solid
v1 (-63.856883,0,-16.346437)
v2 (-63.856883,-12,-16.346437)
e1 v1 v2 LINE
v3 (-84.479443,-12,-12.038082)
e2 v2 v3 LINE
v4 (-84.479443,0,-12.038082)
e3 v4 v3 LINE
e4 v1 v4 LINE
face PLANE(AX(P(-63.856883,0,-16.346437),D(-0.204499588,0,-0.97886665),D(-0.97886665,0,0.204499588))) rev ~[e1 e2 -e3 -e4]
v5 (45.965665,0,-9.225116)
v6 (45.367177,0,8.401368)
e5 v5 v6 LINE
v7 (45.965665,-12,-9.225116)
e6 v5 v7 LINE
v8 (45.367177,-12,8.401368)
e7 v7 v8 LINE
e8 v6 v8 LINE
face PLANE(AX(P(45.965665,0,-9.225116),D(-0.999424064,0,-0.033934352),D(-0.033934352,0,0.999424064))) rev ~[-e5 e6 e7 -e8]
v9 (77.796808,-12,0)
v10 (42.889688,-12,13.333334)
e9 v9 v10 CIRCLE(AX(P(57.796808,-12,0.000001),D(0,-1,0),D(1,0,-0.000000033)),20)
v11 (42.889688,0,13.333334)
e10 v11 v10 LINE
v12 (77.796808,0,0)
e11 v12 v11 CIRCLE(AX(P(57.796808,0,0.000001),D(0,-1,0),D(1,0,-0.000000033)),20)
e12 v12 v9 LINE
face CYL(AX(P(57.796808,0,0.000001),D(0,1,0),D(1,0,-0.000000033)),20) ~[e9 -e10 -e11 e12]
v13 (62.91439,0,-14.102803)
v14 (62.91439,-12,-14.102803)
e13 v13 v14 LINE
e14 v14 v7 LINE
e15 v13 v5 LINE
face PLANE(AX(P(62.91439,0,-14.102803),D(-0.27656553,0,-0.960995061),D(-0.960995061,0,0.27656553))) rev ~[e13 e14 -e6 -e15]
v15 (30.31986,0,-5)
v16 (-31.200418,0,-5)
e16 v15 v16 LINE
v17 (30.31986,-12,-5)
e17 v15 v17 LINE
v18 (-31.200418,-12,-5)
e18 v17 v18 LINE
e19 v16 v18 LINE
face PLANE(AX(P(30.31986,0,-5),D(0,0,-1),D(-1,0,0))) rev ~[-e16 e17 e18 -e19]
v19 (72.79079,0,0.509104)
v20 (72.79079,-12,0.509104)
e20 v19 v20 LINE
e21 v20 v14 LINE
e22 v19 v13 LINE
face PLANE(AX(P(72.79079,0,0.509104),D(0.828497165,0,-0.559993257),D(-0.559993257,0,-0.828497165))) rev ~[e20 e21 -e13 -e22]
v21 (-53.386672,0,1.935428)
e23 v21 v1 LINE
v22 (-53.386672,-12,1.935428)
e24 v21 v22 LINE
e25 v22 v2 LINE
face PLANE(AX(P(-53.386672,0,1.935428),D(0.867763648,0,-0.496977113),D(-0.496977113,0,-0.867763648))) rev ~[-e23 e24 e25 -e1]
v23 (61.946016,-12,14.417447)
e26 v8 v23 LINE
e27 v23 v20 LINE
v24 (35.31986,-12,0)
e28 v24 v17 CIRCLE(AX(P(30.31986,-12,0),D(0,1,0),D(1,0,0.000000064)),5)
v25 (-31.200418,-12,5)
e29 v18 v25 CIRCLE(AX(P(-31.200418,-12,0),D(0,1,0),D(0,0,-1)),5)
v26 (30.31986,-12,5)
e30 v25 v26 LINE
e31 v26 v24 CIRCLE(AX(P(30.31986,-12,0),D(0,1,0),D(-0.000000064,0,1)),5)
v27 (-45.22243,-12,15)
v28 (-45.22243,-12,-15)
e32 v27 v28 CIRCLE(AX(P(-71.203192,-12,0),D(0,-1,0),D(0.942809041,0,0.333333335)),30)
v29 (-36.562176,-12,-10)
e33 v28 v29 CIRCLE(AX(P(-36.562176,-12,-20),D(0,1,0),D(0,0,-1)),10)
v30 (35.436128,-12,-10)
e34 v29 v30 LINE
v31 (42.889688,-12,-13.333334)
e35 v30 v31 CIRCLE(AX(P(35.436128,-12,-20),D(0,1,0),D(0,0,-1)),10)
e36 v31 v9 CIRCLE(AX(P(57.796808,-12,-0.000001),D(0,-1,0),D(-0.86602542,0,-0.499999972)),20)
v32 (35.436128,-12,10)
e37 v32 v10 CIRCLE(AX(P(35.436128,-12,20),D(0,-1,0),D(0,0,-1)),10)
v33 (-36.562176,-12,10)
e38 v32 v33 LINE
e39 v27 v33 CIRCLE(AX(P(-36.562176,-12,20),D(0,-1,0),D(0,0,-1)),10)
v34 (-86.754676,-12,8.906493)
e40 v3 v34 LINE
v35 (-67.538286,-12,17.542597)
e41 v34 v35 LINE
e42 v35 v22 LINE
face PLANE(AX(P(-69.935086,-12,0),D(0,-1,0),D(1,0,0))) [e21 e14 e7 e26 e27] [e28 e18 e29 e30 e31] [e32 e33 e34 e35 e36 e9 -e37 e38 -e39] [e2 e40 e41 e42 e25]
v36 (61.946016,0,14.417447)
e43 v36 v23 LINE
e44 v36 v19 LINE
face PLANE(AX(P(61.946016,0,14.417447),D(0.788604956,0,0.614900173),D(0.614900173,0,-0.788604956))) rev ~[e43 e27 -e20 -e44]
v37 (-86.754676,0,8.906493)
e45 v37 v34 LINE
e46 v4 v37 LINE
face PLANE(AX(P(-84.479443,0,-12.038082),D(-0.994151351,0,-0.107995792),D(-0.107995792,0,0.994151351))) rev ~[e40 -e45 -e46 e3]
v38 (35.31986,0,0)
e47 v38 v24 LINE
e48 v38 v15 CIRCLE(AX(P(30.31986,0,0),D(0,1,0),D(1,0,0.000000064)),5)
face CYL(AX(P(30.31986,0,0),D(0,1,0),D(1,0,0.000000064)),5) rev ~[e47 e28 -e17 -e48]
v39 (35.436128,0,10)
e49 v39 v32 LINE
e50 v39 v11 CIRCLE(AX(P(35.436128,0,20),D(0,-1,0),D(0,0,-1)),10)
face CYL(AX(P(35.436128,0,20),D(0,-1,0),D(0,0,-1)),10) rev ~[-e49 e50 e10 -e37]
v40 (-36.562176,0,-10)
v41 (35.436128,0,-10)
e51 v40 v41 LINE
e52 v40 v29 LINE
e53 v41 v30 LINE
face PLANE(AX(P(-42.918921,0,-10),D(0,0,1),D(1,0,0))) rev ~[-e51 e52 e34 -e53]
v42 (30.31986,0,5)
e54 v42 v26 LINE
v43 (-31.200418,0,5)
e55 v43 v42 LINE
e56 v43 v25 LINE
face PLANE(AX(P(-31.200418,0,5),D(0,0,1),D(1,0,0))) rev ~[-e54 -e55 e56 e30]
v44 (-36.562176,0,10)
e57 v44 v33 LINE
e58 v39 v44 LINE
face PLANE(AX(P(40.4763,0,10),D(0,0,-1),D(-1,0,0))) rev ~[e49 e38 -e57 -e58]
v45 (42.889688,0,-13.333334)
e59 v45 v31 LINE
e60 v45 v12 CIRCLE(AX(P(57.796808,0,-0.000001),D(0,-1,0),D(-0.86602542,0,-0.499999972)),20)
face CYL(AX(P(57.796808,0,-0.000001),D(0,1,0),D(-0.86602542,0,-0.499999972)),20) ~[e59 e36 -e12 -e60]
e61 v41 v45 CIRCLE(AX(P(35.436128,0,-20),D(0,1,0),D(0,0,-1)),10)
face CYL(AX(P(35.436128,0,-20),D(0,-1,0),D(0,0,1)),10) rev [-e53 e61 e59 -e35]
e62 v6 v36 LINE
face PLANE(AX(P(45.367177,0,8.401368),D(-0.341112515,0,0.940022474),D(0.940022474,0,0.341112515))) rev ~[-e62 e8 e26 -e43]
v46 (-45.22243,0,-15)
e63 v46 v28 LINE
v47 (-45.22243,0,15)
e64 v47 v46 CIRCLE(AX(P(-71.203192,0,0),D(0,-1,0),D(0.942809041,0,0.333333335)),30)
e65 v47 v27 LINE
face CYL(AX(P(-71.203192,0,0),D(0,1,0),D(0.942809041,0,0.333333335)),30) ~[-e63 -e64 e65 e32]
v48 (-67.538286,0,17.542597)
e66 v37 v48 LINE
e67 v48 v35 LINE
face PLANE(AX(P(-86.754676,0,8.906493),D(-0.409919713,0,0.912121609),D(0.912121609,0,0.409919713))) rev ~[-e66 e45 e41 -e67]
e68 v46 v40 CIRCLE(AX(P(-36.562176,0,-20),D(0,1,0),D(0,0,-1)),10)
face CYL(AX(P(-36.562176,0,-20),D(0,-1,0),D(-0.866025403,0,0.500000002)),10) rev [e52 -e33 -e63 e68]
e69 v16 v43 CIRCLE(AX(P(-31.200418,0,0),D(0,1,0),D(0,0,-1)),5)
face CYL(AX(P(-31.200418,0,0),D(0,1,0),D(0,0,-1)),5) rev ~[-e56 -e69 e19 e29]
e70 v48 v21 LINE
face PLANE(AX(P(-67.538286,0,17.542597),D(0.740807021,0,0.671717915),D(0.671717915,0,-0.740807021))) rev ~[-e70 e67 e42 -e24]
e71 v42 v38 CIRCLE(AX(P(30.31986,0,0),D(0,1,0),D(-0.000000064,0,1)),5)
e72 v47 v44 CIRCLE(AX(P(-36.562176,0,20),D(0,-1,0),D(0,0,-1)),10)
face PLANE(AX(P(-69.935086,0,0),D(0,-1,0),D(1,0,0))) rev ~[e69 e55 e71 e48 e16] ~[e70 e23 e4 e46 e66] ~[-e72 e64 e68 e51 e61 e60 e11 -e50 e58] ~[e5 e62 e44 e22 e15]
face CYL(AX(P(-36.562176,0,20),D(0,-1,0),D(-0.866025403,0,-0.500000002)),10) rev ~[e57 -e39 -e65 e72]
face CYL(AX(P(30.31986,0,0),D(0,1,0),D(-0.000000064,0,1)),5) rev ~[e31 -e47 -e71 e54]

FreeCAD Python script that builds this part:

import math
import FreeCAD as App
import Part
import Sketcher

V = App.Vector


def edges_at(feature, points):
    """Names of the edges that pass closest to the given points."""
    edges = feature.Shape.Edges
    near = lambda p: min(range(len(edges)), key=lambda i: edges[i].distToShape(Part.Vertex(*p))[0])
    return sorted({f"Edge{near(p) + 1}" for p in points})

doc = App.newDocument("Part")
body = doc.addObject("PartDesign::Body", "Body")

sketch1 = doc.addObject("Sketcher::SketchObject", "Sketch")
body.addObject(sketch1)
sketch1.AttachmentSupport = (doc.XZ_Plane, [""])
sketch1.MapMode = "FlatFace"
sketch1.addGeometry([
    Part.ArcOfCircle(Part.Circle(V(-71.203192, 0, 0), V(0, 0, 1), 30), math.radians(19.471221), math.radians(340.528779)),
    Part.LineSegment(V(-42.918921, -10, 0), V(40.4763, -10, 0)),
    Part.ArcOfCircle(Part.Circle(V(57.796808, -0.000001, 0), V(0, 0, 1), 20), math.radians(-150.000002), math.radians(0.000002)),
    Part.ArcOfCircle(Part.Circle(V(57.796808, 0.000001, 0), V(0, 0, 1), 20), math.radians(-0.000002), math.radians(150.000002)),
    Part.LineSegment(V(40.4763, 10, 0), V(-42.918921, 10, 0)),
    Part.ArcOfCircle(Part.Circle(V(-31.200418, 0, 0), V(0, 0, 1), 5), math.radians(90), math.radians(270)),
    Part.LineSegment(V(-31.200418, 5, 0), V(30.31986, 5, 0)),
    Part.ArcOfCircle(Part.Circle(V(30.31986, 0, 0), V(0, 0, 1), 5), math.radians(-0.000004), math.radians(90.000004)),
    Part.ArcOfCircle(Part.Circle(V(30.31986, 0, 0), V(0, 0, 1), 5), math.radians(-90.000004), math.radians(0.000004)),
    Part.LineSegment(V(30.31986, -5, 0), V(-31.200418, -5, 0)),
    Part.LineSegment(V(45.965665, -9.225116, 0), V(45.367177, 8.401368, 0)),
    Part.LineSegment(V(45.367177, 8.401368, 0), V(61.946016, 14.417447, 0)),
    Part.LineSegment(V(61.946016, 14.417447, 0), V(72.79079, 0.509104, 0)),
    Part.LineSegment(V(72.79079, 0.509104, 0), V(62.91439, -14.102803, 0)),
    Part.LineSegment(V(62.91439, -14.102803, 0), V(45.965665, -9.225116, 0)),
    Part.LineSegment(V(-84.479443, -12.038082, 0), V(-86.754676, 8.906493, 0)),
    Part.LineSegment(V(-86.754676, 8.906493, 0), V(-67.538286, 17.542597, 0)),
    Part.LineSegment(V(-67.538286, 17.542597, 0), V(-53.386672, 1.935428, 0)),
    Part.LineSegment(V(-53.386672, 1.935428, 0), V(-63.856883, -16.346437, 0)),
    Part.LineSegment(V(-63.856883, -16.346437, 0), V(-84.479443, -12.038082, 0)),
], False)
sketch1.addConstraint([
    Sketcher.Constraint("Coincident", 0, 2, 1, 1),
    Sketcher.Constraint("Coincident", 1, 2, 2, 1),
    Sketcher.Constraint("Tangent", 2, 2, 3, 1),
    Sketcher.Constraint("Coincident", 3, 2, 4, 1),
    Sketcher.Constraint("Coincident", 4, 2, 0, 1),
    Sketcher.Constraint("Tangent", 5, 1, 6, 1),
    Sketcher.Constraint("Tangent", 6, 2, 7, 2),
    Sketcher.Constraint("Tangent", 7, 1, 8, 2),
    Sketcher.Constraint("Tangent", 8, 1, 9, 1),
    Sketcher.Constraint("Tangent", 9, 2, 5, 2),
    Sketcher.Constraint("Coincident", 10, 2, 11, 1),
    Sketcher.Constraint("Coincident", 11, 2, 12, 1),
    Sketcher.Constraint("Coincident", 12, 2, 13, 1),
    Sketcher.Constraint("Coincident", 13, 2, 14, 1),
    Sketcher.Constraint("Coincident", 14, 2, 10, 1),
    Sketcher.Constraint("Coincident", 15, 2, 16, 1),
    Sketcher.Constraint("Coincident", 16, 2, 17, 1),
    Sketcher.Constraint("Coincident", 17, 2, 18, 1),
    Sketcher.Constraint("Coincident", 18, 2, 19, 1),
    Sketcher.Constraint("Coincident", 19, 2, 15, 1),
    Sketcher.Constraint("Horizontal", 1),
    Sketcher.Constraint("Horizontal", 4),
    Sketcher.Constraint("Horizontal", 6),
    Sketcher.Constraint("Horizontal", 9),
    Sketcher.Constraint("Equal", 2, 3),
    Sketcher.Constraint("Equal", 5, 7),
    Sketcher.Constraint("Symmetric", 1, 2, 3, 2, -1),
    Sketcher.Constraint("PointOnObject", 0, 3, -1),
    Sketcher.Constraint("PointOnObject", 5, 3, -1),
    Sketcher.Constraint("PointOnObject", 2, 2, -1),
    Sketcher.Constraint("PointOnObject", 7, 1, -1),
    Sketcher.Constraint("Equal", 10, 11),
    Sketcher.Constraint("Equal", 11, 12),
    Sketcher.Constraint("Equal", 12, 13),
    Sketcher.Constraint("Equal", 13, 14),
    Sketcher.Constraint("Equal", 15, 16),
    Sketcher.Constraint("Equal", 16, 17),
    Sketcher.Constraint("Equal", 17, 18),
    Sketcher.Constraint("Equal", 18, 19),
    Sketcher.Constraint("Radius", 0, 30.0),
    Sketcher.Constraint("Radius", 2, 20.0),
    Sketcher.Constraint("Radius", 5, 5.0),
    Sketcher.Constraint("DistanceY", 0, 2, -1, 1, 10.0),
    Sketcher.Constraint("DistanceX", 0, 3, 2, 3, 129.0),
    Sketcher.Constraint("DistanceX", -1, 1, 1, 2, 40.4763),
    Sketcher.Constraint("DistanceX", 13, 2, 12, 2, 9.8764),
    Sketcher.Constraint("Distance", 10, 17.636642),
    Sketcher.Constraint("DistanceX", 6, 1, 6, 2, 61.520278),
    Sketcher.Constraint("DistanceX", -1, 1, 7, 3, 30.31986),
    Sketcher.Constraint("DistanceX", -1, 1, 12, 2, 72.79079),
    Sketcher.Constraint("DistanceX", 17, 2, -1, 1, 53.386672),
    Sketcher.Constraint("DistanceY", 19, 2, -1, 1, 12.038082),
    Sketcher.Constraint("DistanceX", 10, 2, 3, 3, 12.429631),
    Sketcher.Constraint("DistanceY", 2, 3, 10, 2, 8.401369),
    Sketcher.Constraint("DistanceX", 10, 2, 11, 2, 16.578839),
    Sketcher.Constraint("DistanceX", 15, 2, 5, 1, 55.554258),
    Sketcher.Constraint("DistanceX", 15, 2, 16, 2, 19.21639),
    Sketcher.Constraint("DistanceY", 0, 2, 17, 2, 11.935428),
    Sketcher.Constraint("DistanceY", 17, 2, 16, 2, 15.607169),
])
pad1 = doc.addObject("PartDesign::Pad", "Pad")
body.addObject(pad1)
pad1.Profile = sketch1
pad1.Length = 12
doc.recompute()

fillet = doc.addObject("PartDesign::Fillet", "Fillet")
body.addObject(fillet)
fillet.Base = (pad1, edges_at(pad1, [
    (-42.919, -6, -10),
    (40.476, -6, -10),
    (40.476, -6, 10),
    (-42.919, -6, 10),
]))
fillet.Radius = 10

doc.recompute()
